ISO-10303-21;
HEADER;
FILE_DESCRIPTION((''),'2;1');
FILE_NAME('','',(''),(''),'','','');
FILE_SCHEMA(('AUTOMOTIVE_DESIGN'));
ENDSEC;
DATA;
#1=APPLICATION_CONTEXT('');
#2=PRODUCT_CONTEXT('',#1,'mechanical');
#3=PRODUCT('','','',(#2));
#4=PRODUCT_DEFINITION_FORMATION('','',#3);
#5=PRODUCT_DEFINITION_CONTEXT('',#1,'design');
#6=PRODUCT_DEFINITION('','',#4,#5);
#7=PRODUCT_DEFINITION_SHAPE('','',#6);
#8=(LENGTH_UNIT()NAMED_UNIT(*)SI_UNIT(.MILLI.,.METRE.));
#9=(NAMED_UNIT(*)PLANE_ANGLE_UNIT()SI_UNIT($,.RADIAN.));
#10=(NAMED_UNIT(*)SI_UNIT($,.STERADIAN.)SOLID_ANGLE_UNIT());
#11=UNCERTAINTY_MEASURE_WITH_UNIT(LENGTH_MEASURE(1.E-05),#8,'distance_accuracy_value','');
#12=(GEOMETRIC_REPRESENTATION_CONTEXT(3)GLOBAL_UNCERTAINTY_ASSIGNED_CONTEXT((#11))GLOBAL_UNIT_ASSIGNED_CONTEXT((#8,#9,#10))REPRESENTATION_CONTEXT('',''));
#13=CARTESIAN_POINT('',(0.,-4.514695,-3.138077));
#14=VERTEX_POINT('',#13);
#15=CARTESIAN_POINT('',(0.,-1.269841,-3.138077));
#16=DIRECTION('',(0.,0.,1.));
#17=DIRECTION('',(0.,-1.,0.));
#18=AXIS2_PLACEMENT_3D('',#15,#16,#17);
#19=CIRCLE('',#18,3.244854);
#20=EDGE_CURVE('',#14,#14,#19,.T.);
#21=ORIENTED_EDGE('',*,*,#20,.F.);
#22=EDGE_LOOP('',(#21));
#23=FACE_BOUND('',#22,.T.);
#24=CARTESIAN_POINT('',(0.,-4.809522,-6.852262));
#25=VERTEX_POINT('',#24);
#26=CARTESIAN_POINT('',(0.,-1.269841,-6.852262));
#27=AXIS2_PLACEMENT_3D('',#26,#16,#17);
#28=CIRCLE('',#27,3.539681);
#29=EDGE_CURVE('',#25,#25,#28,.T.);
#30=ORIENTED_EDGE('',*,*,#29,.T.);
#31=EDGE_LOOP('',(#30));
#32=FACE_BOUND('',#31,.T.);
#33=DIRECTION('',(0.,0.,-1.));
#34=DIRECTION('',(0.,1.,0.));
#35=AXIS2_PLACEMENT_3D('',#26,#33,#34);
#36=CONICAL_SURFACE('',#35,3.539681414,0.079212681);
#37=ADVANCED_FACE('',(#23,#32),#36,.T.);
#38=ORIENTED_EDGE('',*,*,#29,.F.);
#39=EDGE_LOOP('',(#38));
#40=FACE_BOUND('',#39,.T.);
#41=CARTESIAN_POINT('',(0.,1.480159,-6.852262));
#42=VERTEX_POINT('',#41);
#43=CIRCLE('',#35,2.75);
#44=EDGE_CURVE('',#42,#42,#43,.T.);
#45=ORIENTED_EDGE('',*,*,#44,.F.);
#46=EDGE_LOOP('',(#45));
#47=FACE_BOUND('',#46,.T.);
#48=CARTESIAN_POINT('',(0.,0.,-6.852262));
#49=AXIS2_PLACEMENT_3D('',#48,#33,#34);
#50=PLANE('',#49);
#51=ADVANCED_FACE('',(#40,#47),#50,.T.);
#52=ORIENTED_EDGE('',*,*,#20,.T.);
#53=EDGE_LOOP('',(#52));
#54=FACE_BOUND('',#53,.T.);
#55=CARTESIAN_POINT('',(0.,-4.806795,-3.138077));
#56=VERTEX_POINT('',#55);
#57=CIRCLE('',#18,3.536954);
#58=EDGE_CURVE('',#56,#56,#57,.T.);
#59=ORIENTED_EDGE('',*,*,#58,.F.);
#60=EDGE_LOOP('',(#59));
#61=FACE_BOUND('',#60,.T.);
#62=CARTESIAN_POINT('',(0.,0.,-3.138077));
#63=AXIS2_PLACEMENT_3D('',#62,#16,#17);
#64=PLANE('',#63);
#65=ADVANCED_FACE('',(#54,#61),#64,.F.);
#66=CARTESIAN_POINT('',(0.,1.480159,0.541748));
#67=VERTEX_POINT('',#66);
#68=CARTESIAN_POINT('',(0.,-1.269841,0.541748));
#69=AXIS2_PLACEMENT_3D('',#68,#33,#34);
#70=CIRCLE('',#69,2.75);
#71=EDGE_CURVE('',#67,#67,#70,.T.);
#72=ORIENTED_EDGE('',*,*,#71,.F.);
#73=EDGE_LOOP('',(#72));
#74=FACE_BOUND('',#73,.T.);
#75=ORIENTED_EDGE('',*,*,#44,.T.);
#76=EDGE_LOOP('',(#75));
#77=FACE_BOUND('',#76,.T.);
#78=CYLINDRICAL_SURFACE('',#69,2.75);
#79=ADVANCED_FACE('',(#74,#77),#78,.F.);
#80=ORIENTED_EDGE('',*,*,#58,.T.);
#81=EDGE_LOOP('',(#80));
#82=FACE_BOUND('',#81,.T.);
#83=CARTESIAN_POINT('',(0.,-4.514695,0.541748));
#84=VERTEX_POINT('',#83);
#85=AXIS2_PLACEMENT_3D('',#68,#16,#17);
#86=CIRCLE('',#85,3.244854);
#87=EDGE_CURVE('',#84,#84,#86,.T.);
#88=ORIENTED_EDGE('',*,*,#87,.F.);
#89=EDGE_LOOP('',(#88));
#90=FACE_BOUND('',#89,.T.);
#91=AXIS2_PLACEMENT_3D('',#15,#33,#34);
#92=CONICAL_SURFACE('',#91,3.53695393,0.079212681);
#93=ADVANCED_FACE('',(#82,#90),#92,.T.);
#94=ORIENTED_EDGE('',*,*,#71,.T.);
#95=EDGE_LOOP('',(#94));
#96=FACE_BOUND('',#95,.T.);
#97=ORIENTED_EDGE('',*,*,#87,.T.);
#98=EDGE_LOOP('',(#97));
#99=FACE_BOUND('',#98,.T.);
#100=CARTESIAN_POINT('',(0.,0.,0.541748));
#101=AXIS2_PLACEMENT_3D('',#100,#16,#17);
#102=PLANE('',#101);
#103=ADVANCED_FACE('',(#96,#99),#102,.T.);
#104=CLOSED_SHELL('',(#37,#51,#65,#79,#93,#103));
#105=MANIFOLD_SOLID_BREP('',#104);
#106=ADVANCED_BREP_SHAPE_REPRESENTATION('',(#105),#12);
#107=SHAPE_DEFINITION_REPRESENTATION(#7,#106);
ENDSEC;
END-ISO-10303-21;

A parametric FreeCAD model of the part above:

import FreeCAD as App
import Part
import Sketcher
from FreeCAD import Vector
Q = App.Units.Quantity

doc = App.newDocument("Part")
body = doc.addObject("PartDesign::Body", "Body")

sketch1 = body.newObject("Sketcher::SketchObject", "Sketch")
sketch1.AttachmentSupport = (doc.getObject("YZ_Plane"), [""])
sketch1.MapMode = "FlatFace"
sketch1.addGeometry([
    Part.LineSegment(Vector(-1.269841, 0.541748, 0), Vector(-1.269841, -6.852262, 0)),
    Part.LineSegment(Vector(-1.269841, -6.852262, 0), Vector(2.269841, -6.852262, 0)),
    Part.LineSegment(Vector(2.269841, -6.852262, 0), Vector(1.975013, -3.138077, 0)),
    Part.LineSegment(Vector(1.975013, -3.138077, 0), Vector(2.267113, -3.138077, 0)),
    Part.LineSegment(Vector(2.267113, -3.138077, 0), Vector(1.975013, 0.541748, 0)),
    Part.LineSegment(Vector(1.975013, 0.541748, 0), Vector(-1.269841, 0.541748, 0)),
], False)
sketch1.addGeometry(Part.LineSegment(Vector(-1.269841, 0.541748, 0), Vector(-1.269841, -6.852262, 0)), True)
sketch1.addConstraint([
    Sketcher.Constraint("Coincident", 0, 2, 1, 1),
    Sketcher.Constraint("Coincident", 1, 2, 2, 1),
    Sketcher.Constraint("Coincident", 2, 2, 3, 1),
    Sketcher.Constraint("Coincident", 3, 2, 4, 1),
    Sketcher.Constraint("Coincident", 4, 2, 5, 1),
    Sketcher.Constraint("Coincident", 5, 2, 0, 1),
    Sketcher.Constraint("Vertical", 0),
    Sketcher.Constraint("Horizontal", 1),
    Sketcher.Constraint("Horizontal", 3),
    Sketcher.Constraint("Horizontal", 5),
    Sketcher.Constraint("Vertical", 6),
    Sketcher.Constraint("Coincident", 6, 1, 5, 2),
    Sketcher.Constraint("Parallel", 2, 4),
    Sketcher.Constraint("Horizontal", 1, 2, 6, 2),
    Sketcher.Constraint("Vertical", 2, 2, 4, 2),
    Sketcher.Constraint("DistanceX", 3, 1, 3, 2, Q("0.2921 mm")),
    Sketcher.Constraint("Distance", 4, Q("3.6914 mm")),
    Sketcher.Constraint("DistanceX", 1, 1, 1, 2, Q("3.539681 mm")),
    Sketcher.Constraint("DistanceY", 0, 2, 0, 1, Q("7.39401 mm")),
    Sketcher.Constraint("DistanceX", 0, 2, -1, 1, Q("1.269841 mm")),
    Sketcher.Constraint("DistanceY", -1, 1, 4, 2, Q("0.541748 mm")),
])
revolution = body.newObject("PartDesign::Revolution", "Revolution")
revolution.Profile = sketch1
revolution.ReferenceAxis = (sketch1, ["Axis0"])
revolution.Angle = 360

sketch2 = body.newObject("Sketcher::SketchObject", "Sketch001")
sketch2.AttachmentSupport = (doc.getObject("XY_Plane"), [""])
sketch2.MapMode = "FlatFace"
sketch2.AttachmentOffset = App.Placement(Vector(0, 0, -6.852262), App.Rotation())
sketch2.addGeometry(Part.Circle(Vector(0, -1.269841, 0), Vector(0, 0, 1), 2.75), False)
sketch2.addConstraint([
    Sketcher.Constraint("PointOnObject", 0, 3, -2),
    Sketcher.Constraint("Diameter", 0, Q("5.5 mm")),
    Sketcher.Constraint("DistanceY", 0, 3, -1, 1, Q("1.269841 mm")),
])
pocket1 = body.newObject("PartDesign::Pocket", "Pocket")
pocket1.Profile = sketch2
pocket1.Type = "ThroughAll"
pocket1.Reversed = True

doc.recompute()
